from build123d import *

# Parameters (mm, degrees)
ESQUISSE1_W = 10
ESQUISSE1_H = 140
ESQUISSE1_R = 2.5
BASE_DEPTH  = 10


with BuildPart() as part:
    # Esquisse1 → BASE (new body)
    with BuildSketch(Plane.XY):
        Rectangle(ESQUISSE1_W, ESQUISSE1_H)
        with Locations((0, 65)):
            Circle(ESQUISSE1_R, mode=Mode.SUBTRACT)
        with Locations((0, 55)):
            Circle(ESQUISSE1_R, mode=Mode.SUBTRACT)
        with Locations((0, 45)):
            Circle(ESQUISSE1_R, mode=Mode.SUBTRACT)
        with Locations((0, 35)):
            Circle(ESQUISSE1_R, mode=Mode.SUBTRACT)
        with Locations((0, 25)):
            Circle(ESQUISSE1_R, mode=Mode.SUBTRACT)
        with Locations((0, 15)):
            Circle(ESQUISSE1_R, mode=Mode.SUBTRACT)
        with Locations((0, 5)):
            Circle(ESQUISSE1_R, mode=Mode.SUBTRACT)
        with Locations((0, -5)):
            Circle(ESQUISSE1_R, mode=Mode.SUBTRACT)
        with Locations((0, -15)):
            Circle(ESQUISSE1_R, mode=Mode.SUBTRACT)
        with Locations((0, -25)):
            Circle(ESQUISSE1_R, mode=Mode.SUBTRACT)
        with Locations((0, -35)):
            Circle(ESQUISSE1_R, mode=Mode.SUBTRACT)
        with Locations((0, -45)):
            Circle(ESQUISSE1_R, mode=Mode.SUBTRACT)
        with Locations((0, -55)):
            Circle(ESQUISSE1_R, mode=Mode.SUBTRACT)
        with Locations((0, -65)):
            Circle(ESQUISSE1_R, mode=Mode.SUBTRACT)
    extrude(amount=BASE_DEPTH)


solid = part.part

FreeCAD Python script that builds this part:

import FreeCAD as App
import Part
import Sketcher

V = App.Vector
Q = App.Units.Quantity


def add_polygon(sketch, points):
    """Adds a closed chain of lines whose ends are joined by coincident constraints."""
    first, n = sketch.GeometryCount, len(points)
    for a, b in zip(points, points[1:] + points[:1]):
        sketch.addGeometry(Part.LineSegment(App.Vector(*a, 0), App.Vector(*b, 0)), False)
    for i in range(n):
        sketch.addConstraint(Sketcher.Constraint("Coincident", first + i, 2, first + (i + 1) % n, 1))

doc = App.newDocument("Part")
body = doc.addObject("PartDesign::Body", "Body")

# Sketch on XY plane
sketch1 = body.newObject("Sketcher::SketchObject", "Sketch")
sketch1.AttachmentSupport = (doc.getObject("XY_Plane"), [""])
sketch1.MapMode = "FlatFace"
add_polygon(sketch1, [(-5, 70), (-5, -70), (5, -70), (5, 70)])  # lines 0-3
sketch1.addGeometry(Part.Circle(V(0, -65, 0), V(0, 0, 1), 2.5), False)  # 4
sketch1.addGeometry(Part.Circle(V(0, -55, 0), V(0, 0, 1), 2.5), False)  # 5
sketch1.addGeometry(Part.Circle(V(0, -45, 0), V(0, 0, 1), 2.5), False)  # 6
sketch1.addGeometry(Part.Circle(V(0, -35, 0), V(0, 0, 1), 2.5), False)  # 7
sketch1.addGeometry(Part.Circle(V(0, -25, 0), V(0, 0, 1), 2.5), False)  # 8
sketch1.addGeometry(Part.Circle(V(0, -15, 0), V(0, 0, 1), 2.5), False)  # 9
sketch1.addGeometry(Part.Circle(V(0, -5, 0), V(0, 0, 1), 2.5), False)  # 10
sketch1.addGeometry(Part.Circle(V(0, 5, 0), V(0, 0, 1), 2.5), False)  # 11
sketch1.addGeometry(Part.Circle(V(0, 15, 0), V(0, 0, 1), 2.5), False)  # 12
sketch1.addGeometry(Part.Circle(V(0, 25, 0), V(0, 0, 1), 2.5), False)  # 13
sketch1.addGeometry(Part.Circle(V(0, 35, 0), V(0, 0, 1), 2.5), False)  # 14
sketch1.addGeometry(Part.Circle(V(0, 45, 0), V(0, 0, 1), 2.5), False)  # 15
sketch1.addGeometry(Part.Circle(V(0, 55, 0), V(0, 0, 1), 2.5), False)  # 16
sketch1.addGeometry(Part.Circle(V(0, 65, 0), V(0, 0, 1), 2.5), False)  # 17
sketch1.addConstraint([
    Sketcher.Constraint("Vertical", 0),
    Sketcher.Constraint("Horizontal", 1),
    Sketcher.Constraint("Vertical", 2),
    Sketcher.Constraint("Horizontal", 3),
    Sketcher.Constraint("Equal", 4, 5),
    Sketcher.Constraint("Equal", 5, 6),
    Sketcher.Constraint("Equal", 6, 7),
    Sketcher.Constraint("Equal", 7, 8),
    Sketcher.Constraint("Equal", 8, 9),
    Sketcher.Constraint("Equal", 9, 10),
    Sketcher.Constraint("Equal", 10, 11),
    Sketcher.Constraint("Equal", 11, 12),
    Sketcher.Constraint("Equal", 12, 13),
    Sketcher.Constraint("Equal", 13, 14),
    Sketcher.Constraint("Equal", 14, 15),
    Sketcher.Constraint("Equal", 15, 16),
    Sketcher.Constraint("Equal", 16, 17),
    Sketcher.Constraint("Symmetric", 10, 3, 11, 3, -1, 1),
    Sketcher.Constraint("Symmetric", 9, 3, 12, 3, -1, 1),
    Sketcher.Constraint("Symmetric", 8, 3, 13, 3, -1, 1),
    Sketcher.Constraint("Symmetric", 7, 3, 14, 3, -1, 1),
    Sketcher.Constraint("Symmetric", 6, 3, 15, 3, -1, 1),
    Sketcher.Constraint("Symmetric", 5, 3, 16, 3, -1, 1),
    Sketcher.Constraint("Symmetric", 4, 3, 17, 3, -1, 1),
    Sketcher.Constraint("Symmetric", 0, 2, 2, 2, -1, 1),
    Sketcher.Constraint("PointOnObject", 4, 3, -2),
    Sketcher.Constraint("PointOnObject", 5, 3, -2),
    Sketcher.Constraint("PointOnObject", 6, 3, -2),
    Sketcher.Constraint("PointOnObject", 7, 3, -2),
    Sketcher.Constraint("PointOnObject", 8, 3, -2),
    Sketcher.Constraint("PointOnObject", 9, 3, -2),
    Sketcher.Constraint("PointOnObject", 10, 3, -2),
    Sketcher.Constraint("Diameter", 4, Q("5 mm")),
    Sketcher.Constraint("DistanceX", 1, 1, 1, 2, Q("10 mm")),
    Sketcher.Constraint("DistanceY", 0, 2, 0, 1, Q("140 mm")),
    Sketcher.Constraint("DistanceY", 4, 3, -1, 1, Q("65 mm")),
    Sketcher.Constraint("DistanceY", 5, 3, -1, 1, Q("55 mm")),
    Sketcher.Constraint("DistanceY", 6, 3, -1, 1, Q("45 mm")),
    Sketcher.Constraint("DistanceY", 7, 3, -1, 1, Q("35 mm")),
    Sketcher.Constraint("DistanceY", 8, 3, -1, 1, Q("25 mm")),
    Sketcher.Constraint("DistanceY", 9, 3, -1, 1, Q("15 mm")),
    Sketcher.Constraint("DistanceY", 10, 3, -1, 1, Q("5 mm")),
])
pad1 = body.newObject("PartDesign::Pad", "Pad")
pad1.Profile = sketch1
pad1.Length = 10

doc.recompute()
